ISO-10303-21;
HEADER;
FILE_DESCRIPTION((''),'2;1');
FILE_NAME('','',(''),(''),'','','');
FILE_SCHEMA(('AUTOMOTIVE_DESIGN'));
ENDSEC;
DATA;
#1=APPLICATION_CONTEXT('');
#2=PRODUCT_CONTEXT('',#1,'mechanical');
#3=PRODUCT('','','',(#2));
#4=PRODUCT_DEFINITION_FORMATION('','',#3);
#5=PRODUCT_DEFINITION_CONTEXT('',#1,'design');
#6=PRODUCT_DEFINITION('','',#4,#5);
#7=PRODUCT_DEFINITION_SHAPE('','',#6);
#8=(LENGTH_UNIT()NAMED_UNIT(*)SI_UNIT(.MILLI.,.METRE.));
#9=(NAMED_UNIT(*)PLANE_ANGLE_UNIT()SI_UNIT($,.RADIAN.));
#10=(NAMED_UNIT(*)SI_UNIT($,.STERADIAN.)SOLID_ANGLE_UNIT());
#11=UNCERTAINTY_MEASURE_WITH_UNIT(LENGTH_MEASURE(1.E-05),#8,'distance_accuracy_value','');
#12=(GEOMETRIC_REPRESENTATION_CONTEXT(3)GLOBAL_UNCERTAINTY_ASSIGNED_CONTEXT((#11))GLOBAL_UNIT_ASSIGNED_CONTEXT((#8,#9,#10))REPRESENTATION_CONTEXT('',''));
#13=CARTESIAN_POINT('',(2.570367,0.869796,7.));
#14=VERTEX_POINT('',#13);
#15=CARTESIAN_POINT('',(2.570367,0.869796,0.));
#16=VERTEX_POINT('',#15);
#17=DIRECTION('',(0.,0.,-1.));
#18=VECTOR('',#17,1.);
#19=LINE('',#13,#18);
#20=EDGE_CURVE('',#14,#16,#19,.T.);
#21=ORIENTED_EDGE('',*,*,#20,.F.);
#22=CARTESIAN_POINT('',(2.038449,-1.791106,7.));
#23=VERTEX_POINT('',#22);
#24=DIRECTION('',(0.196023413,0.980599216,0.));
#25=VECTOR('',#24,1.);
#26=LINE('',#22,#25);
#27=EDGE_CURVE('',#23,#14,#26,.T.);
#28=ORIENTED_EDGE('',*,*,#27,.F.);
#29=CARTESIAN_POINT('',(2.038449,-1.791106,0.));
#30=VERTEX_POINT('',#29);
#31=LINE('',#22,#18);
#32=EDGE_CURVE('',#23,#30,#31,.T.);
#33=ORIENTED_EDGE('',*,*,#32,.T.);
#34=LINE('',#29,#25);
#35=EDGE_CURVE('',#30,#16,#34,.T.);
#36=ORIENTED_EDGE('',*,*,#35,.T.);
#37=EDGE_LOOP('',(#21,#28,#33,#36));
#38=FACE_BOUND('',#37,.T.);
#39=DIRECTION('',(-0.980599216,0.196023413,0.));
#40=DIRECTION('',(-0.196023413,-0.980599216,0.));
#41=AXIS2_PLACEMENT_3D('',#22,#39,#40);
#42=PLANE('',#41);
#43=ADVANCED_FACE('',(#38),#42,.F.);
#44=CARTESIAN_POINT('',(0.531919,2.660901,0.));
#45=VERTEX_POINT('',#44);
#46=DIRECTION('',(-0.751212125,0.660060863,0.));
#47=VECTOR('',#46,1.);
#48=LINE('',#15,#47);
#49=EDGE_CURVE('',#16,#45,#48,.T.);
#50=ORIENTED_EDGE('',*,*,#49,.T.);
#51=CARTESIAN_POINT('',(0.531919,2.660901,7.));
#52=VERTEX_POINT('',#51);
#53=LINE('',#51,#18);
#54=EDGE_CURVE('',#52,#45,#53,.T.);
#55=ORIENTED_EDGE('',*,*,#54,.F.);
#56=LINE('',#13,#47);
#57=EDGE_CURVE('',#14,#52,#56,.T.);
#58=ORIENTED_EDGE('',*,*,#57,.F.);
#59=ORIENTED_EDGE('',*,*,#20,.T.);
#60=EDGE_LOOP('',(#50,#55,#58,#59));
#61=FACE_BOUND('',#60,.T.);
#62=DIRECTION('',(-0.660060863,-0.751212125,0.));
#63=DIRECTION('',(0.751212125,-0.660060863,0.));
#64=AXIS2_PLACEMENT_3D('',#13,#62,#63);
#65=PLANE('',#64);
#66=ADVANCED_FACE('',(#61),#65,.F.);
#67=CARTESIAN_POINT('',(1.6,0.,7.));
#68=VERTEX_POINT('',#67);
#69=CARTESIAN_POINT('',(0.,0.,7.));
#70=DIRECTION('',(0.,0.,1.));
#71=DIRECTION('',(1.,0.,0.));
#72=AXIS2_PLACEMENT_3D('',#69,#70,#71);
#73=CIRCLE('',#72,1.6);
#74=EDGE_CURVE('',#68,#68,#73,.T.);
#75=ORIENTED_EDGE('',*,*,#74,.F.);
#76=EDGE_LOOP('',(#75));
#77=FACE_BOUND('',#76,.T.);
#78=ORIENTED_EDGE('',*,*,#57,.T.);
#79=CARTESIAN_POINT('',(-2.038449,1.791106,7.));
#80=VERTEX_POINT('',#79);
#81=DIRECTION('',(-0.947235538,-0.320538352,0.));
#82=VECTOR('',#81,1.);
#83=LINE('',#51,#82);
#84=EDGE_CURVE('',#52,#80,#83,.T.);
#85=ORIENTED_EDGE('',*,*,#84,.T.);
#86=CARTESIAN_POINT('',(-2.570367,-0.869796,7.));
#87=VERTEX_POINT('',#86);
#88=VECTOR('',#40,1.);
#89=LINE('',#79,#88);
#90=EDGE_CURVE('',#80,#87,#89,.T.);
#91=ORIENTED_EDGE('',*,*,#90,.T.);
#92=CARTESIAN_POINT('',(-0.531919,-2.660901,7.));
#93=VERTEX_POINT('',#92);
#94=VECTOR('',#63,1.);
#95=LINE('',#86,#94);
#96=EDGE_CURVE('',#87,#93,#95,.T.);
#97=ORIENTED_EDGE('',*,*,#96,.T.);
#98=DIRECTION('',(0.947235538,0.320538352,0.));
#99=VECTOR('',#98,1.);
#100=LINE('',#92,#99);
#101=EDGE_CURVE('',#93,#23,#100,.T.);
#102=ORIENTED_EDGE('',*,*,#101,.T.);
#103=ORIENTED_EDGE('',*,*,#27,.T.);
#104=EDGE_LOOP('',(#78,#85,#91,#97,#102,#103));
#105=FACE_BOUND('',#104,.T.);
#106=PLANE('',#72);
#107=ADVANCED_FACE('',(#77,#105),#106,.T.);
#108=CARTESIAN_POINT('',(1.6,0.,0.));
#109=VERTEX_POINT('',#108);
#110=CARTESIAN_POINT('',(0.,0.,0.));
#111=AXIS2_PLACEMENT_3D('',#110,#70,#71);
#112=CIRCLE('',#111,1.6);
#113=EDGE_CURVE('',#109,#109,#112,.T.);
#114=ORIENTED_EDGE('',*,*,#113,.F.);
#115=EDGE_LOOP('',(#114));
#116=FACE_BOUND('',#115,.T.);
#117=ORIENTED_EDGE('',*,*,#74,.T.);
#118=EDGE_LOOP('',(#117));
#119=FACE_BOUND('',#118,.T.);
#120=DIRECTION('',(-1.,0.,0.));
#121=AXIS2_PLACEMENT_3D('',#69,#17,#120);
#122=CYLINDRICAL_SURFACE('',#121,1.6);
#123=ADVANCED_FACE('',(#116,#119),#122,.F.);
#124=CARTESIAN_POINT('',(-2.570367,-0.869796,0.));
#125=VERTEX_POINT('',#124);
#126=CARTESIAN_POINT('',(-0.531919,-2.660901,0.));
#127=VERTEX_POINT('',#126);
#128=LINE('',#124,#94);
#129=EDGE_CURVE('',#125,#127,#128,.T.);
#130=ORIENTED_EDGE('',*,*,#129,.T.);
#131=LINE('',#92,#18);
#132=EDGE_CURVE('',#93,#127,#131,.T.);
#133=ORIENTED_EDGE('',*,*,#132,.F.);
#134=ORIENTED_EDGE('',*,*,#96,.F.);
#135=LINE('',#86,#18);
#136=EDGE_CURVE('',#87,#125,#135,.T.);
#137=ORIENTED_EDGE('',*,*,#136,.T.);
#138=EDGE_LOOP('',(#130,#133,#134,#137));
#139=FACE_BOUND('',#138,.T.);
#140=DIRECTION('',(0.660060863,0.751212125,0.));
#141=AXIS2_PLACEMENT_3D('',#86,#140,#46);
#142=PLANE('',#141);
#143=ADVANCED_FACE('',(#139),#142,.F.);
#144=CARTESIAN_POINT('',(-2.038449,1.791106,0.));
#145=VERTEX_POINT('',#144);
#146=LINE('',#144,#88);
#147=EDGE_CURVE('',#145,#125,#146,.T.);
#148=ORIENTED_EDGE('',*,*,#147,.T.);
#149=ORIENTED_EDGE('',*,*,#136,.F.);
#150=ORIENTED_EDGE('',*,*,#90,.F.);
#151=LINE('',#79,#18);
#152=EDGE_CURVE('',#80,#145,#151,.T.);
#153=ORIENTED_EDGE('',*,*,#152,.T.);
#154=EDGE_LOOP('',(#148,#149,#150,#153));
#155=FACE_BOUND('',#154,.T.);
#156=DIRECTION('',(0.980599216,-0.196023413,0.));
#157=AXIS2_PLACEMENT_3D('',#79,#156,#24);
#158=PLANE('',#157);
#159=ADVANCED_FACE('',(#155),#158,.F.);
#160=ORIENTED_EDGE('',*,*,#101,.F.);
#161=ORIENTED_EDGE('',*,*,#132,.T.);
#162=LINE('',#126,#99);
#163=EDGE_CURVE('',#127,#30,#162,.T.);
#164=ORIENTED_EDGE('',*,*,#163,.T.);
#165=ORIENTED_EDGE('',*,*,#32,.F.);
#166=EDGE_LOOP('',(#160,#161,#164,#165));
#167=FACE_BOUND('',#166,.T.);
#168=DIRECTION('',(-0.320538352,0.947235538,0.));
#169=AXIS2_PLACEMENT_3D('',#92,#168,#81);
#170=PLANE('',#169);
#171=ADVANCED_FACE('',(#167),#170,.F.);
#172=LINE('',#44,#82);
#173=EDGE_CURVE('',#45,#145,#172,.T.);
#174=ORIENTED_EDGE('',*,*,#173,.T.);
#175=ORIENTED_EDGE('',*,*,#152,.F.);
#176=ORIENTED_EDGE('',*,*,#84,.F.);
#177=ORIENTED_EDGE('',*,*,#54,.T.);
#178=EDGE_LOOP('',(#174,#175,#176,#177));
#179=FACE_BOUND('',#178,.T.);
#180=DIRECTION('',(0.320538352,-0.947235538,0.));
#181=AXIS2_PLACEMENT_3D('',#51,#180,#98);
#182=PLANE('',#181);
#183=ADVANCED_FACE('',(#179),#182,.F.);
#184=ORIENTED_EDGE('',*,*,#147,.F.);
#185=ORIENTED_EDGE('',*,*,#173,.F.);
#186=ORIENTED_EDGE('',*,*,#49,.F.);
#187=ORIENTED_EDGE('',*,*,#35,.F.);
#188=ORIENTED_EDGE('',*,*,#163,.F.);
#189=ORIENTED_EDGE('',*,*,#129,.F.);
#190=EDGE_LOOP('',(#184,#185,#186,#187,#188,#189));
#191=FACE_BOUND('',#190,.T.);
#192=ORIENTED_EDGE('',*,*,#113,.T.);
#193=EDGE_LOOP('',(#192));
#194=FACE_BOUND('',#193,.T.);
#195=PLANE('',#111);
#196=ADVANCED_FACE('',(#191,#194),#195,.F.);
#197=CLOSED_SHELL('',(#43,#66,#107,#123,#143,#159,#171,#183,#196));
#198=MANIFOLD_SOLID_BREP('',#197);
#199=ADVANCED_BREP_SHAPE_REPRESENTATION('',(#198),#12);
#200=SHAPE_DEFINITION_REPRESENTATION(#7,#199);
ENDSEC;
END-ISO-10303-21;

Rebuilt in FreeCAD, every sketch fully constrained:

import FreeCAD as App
import Part
import Sketcher
from FreeCAD import Vector


def add_polygon(sketch, points):
    """Adds a closed chain of lines whose ends are joined by coincident constraints."""
    first, n = sketch.GeometryCount, len(points)
    for a, b in zip(points, points[1:] + points[:1]):
        sketch.addGeometry(Part.LineSegment(App.Vector(*a, 0), App.Vector(*b, 0)), False)
    for i in range(n):
        sketch.addConstraint(Sketcher.Constraint("Coincident", first + i, 2, first + (i + 1) % n, 1))

doc = App.newDocument("Part")
body = doc.addObject("PartDesign::Body", "Body")

sketch1 = doc.addObject("Sketcher::SketchObject", "Sketch")
body.addObject(sketch1)
sketch1.AttachmentSupport = (doc.XY_Plane, [""])
sketch1.MapMode = "FlatFace"
add_polygon(sketch1, [(2, -1.8), (2.6, 0.9), (0.5, 2.7), (-2, 1.8), (-2.6, -0.9), (-0.5, -2.7)])
sketch1.addGeometry(Part.Circle(Vector(0, 0, 0), Vector(0, 0, 1), 1.6), False)
sketch1.addConstraint([
    Sketcher.Constraint("Coincident", 6, 3, -1, 1),
    Sketcher.Constraint("Symmetric", 0, 2, 3, 2, -1, 1),
    Sketcher.Constraint("Symmetric", 1, 2, 4, 2, -1, 1),
    Sketcher.Constraint("Symmetric", 2, 2, 5, 2, -1, 1),
    Sketcher.Constraint("Equal", 0, 1),
    Sketcher.Constraint("Equal", 1, 2),
    Sketcher.Constraint("Diameter", 6, 3.2),
    Sketcher.Constraint("DistanceY", -1, 1, 1, 2, 2.660901),
    Sketcher.Constraint("DistanceY", 3, 2, 2, 2, 2.660901),
    Sketcher.Constraint("DistanceX", -1, 1, 1, 2, 0.531919),
    Sketcher.Constraint("DistanceX", 2, 2, -1, 1, 2.038449),
])
pad1 = doc.addObject("PartDesign::Pad", "Pad")
body.addObject(pad1)
pad1.Profile = sketch1
pad1.Length = 7

doc.recompute()
